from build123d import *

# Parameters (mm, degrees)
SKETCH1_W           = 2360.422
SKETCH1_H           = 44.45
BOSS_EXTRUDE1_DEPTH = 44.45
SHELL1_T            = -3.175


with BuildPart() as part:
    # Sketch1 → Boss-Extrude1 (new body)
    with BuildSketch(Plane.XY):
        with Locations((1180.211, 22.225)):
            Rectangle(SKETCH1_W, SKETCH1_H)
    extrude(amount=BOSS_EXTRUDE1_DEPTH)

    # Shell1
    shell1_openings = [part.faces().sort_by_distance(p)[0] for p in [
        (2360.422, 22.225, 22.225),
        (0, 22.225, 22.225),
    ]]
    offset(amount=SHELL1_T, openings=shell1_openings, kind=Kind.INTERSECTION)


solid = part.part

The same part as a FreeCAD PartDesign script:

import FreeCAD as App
import Part
import Sketcher

V = App.Vector
Q = App.Units.Quantity


def faces_at(feature, points):
    """Names of the faces that lie closest to the given points."""
    faces = feature.Shape.Faces
    near = lambda p: min(range(len(faces)), key=lambda i: faces[i].distToShape(Part.Vertex(*p))[0])
    return sorted({f"Face{near(p) + 1}" for p in points})


def add_polygon(sketch, points):
    """Adds a closed chain of lines whose ends are joined by coincident constraints."""
    first, n = sketch.GeometryCount, len(points)
    for a, b in zip(points, points[1:] + points[:1]):
        sketch.addGeometry(Part.LineSegment(App.Vector(*a, 0), App.Vector(*b, 0)), False)
    for i in range(n):
        sketch.addConstraint(Sketcher.Constraint("Coincident", first + i, 2, first + (i + 1) % n, 1))

doc = App.newDocument("Part")
body = doc.addObject("PartDesign::Body", "Body")

# Sketch on XY plane
sketch1 = body.newObject("Sketcher::SketchObject", "Sketch")
sketch1.AttachmentSupport = (doc.getObject("XY_Plane"), [""])
sketch1.MapMode = "FlatFace"
add_polygon(sketch1, [(0, 44), (0, 0), (2360, 0), (2360, 44)])  # lines 0-3
sketch1.addConstraint([
    Sketcher.Constraint("Vertical", 0),
    Sketcher.Constraint("Horizontal", 1),
    Sketcher.Constraint("Vertical", 2),
    Sketcher.Constraint("Horizontal", 3),
    Sketcher.Constraint("Coincident", 0, 2, -1, 1),
    Sketcher.Constraint("DistanceX", 1, 1, 1, 2, Q("92.93 in")),
    Sketcher.Constraint("DistanceY", 0, 2, 0, 1, Q("1.75 in")),
])
pad1 = body.newObject("PartDesign::Pad", "Pad")
pad1.Profile = sketch1
pad1.Length = Q("1.75 in")
doc.recompute()

thickness = body.newObject("PartDesign::Thickness", "Thickness")
thickness.Base = (pad1, faces_at(pad1, [(2360.422, 22.225, 22.225), (0, 22.225, 22.225)]))
thickness.Value = Q("0.125 in")
thickness.Reversed = True
thickness.Join = "Intersection"

doc.recompute()
